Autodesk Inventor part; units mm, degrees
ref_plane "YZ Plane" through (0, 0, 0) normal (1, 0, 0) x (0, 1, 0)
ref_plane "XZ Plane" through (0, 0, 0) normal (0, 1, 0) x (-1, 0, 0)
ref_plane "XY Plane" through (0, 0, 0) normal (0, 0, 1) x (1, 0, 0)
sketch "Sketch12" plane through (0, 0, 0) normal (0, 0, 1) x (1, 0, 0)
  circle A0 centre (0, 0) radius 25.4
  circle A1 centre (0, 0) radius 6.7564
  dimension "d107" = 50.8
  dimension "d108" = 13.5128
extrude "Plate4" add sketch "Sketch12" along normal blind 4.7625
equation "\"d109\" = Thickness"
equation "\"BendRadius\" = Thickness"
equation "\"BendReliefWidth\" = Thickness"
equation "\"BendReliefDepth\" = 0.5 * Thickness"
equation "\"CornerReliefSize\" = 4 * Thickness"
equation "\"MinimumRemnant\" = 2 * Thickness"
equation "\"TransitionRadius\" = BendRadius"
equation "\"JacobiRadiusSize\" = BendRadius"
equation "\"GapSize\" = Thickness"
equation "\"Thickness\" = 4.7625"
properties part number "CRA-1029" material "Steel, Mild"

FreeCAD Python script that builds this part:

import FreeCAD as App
import Part
import Sketcher
Q = App.Units.Quantity

doc = App.newDocument("Part")
body = doc.addObject("PartDesign::Body", "Body")

# Sketch on XY plane
sketch1 = body.newObject("Sketcher::SketchObject", "Sketch")
sketch1.AttachmentSupport = (doc.getObject("XY_Plane"), [""])
sketch1.MapMode = "FlatFace"
sketch1.addGeometry([
    Part.Circle(App.Vector(0, 0, 0), App.Vector(0, 0, 1), 25),
    Part.Circle(App.Vector(0, 0, 0), App.Vector(0, 0, 1), 7),
], False)
sketch1.addConstraint([
    Sketcher.Constraint("Coincident", 0, 3, -1, 1),
    Sketcher.Constraint("Coincident", 1, 3, -1, 1),
    Sketcher.Constraint("Diameter", 0, Q("2 in")),
    Sketcher.Constraint("Diameter", 1, Q("0.532 in")),
])
pad1 = body.newObject("PartDesign::Pad", "Pad")
pad1.Profile = sketch1
pad1.Length = Q("0.1875 in")

doc.recompute()
